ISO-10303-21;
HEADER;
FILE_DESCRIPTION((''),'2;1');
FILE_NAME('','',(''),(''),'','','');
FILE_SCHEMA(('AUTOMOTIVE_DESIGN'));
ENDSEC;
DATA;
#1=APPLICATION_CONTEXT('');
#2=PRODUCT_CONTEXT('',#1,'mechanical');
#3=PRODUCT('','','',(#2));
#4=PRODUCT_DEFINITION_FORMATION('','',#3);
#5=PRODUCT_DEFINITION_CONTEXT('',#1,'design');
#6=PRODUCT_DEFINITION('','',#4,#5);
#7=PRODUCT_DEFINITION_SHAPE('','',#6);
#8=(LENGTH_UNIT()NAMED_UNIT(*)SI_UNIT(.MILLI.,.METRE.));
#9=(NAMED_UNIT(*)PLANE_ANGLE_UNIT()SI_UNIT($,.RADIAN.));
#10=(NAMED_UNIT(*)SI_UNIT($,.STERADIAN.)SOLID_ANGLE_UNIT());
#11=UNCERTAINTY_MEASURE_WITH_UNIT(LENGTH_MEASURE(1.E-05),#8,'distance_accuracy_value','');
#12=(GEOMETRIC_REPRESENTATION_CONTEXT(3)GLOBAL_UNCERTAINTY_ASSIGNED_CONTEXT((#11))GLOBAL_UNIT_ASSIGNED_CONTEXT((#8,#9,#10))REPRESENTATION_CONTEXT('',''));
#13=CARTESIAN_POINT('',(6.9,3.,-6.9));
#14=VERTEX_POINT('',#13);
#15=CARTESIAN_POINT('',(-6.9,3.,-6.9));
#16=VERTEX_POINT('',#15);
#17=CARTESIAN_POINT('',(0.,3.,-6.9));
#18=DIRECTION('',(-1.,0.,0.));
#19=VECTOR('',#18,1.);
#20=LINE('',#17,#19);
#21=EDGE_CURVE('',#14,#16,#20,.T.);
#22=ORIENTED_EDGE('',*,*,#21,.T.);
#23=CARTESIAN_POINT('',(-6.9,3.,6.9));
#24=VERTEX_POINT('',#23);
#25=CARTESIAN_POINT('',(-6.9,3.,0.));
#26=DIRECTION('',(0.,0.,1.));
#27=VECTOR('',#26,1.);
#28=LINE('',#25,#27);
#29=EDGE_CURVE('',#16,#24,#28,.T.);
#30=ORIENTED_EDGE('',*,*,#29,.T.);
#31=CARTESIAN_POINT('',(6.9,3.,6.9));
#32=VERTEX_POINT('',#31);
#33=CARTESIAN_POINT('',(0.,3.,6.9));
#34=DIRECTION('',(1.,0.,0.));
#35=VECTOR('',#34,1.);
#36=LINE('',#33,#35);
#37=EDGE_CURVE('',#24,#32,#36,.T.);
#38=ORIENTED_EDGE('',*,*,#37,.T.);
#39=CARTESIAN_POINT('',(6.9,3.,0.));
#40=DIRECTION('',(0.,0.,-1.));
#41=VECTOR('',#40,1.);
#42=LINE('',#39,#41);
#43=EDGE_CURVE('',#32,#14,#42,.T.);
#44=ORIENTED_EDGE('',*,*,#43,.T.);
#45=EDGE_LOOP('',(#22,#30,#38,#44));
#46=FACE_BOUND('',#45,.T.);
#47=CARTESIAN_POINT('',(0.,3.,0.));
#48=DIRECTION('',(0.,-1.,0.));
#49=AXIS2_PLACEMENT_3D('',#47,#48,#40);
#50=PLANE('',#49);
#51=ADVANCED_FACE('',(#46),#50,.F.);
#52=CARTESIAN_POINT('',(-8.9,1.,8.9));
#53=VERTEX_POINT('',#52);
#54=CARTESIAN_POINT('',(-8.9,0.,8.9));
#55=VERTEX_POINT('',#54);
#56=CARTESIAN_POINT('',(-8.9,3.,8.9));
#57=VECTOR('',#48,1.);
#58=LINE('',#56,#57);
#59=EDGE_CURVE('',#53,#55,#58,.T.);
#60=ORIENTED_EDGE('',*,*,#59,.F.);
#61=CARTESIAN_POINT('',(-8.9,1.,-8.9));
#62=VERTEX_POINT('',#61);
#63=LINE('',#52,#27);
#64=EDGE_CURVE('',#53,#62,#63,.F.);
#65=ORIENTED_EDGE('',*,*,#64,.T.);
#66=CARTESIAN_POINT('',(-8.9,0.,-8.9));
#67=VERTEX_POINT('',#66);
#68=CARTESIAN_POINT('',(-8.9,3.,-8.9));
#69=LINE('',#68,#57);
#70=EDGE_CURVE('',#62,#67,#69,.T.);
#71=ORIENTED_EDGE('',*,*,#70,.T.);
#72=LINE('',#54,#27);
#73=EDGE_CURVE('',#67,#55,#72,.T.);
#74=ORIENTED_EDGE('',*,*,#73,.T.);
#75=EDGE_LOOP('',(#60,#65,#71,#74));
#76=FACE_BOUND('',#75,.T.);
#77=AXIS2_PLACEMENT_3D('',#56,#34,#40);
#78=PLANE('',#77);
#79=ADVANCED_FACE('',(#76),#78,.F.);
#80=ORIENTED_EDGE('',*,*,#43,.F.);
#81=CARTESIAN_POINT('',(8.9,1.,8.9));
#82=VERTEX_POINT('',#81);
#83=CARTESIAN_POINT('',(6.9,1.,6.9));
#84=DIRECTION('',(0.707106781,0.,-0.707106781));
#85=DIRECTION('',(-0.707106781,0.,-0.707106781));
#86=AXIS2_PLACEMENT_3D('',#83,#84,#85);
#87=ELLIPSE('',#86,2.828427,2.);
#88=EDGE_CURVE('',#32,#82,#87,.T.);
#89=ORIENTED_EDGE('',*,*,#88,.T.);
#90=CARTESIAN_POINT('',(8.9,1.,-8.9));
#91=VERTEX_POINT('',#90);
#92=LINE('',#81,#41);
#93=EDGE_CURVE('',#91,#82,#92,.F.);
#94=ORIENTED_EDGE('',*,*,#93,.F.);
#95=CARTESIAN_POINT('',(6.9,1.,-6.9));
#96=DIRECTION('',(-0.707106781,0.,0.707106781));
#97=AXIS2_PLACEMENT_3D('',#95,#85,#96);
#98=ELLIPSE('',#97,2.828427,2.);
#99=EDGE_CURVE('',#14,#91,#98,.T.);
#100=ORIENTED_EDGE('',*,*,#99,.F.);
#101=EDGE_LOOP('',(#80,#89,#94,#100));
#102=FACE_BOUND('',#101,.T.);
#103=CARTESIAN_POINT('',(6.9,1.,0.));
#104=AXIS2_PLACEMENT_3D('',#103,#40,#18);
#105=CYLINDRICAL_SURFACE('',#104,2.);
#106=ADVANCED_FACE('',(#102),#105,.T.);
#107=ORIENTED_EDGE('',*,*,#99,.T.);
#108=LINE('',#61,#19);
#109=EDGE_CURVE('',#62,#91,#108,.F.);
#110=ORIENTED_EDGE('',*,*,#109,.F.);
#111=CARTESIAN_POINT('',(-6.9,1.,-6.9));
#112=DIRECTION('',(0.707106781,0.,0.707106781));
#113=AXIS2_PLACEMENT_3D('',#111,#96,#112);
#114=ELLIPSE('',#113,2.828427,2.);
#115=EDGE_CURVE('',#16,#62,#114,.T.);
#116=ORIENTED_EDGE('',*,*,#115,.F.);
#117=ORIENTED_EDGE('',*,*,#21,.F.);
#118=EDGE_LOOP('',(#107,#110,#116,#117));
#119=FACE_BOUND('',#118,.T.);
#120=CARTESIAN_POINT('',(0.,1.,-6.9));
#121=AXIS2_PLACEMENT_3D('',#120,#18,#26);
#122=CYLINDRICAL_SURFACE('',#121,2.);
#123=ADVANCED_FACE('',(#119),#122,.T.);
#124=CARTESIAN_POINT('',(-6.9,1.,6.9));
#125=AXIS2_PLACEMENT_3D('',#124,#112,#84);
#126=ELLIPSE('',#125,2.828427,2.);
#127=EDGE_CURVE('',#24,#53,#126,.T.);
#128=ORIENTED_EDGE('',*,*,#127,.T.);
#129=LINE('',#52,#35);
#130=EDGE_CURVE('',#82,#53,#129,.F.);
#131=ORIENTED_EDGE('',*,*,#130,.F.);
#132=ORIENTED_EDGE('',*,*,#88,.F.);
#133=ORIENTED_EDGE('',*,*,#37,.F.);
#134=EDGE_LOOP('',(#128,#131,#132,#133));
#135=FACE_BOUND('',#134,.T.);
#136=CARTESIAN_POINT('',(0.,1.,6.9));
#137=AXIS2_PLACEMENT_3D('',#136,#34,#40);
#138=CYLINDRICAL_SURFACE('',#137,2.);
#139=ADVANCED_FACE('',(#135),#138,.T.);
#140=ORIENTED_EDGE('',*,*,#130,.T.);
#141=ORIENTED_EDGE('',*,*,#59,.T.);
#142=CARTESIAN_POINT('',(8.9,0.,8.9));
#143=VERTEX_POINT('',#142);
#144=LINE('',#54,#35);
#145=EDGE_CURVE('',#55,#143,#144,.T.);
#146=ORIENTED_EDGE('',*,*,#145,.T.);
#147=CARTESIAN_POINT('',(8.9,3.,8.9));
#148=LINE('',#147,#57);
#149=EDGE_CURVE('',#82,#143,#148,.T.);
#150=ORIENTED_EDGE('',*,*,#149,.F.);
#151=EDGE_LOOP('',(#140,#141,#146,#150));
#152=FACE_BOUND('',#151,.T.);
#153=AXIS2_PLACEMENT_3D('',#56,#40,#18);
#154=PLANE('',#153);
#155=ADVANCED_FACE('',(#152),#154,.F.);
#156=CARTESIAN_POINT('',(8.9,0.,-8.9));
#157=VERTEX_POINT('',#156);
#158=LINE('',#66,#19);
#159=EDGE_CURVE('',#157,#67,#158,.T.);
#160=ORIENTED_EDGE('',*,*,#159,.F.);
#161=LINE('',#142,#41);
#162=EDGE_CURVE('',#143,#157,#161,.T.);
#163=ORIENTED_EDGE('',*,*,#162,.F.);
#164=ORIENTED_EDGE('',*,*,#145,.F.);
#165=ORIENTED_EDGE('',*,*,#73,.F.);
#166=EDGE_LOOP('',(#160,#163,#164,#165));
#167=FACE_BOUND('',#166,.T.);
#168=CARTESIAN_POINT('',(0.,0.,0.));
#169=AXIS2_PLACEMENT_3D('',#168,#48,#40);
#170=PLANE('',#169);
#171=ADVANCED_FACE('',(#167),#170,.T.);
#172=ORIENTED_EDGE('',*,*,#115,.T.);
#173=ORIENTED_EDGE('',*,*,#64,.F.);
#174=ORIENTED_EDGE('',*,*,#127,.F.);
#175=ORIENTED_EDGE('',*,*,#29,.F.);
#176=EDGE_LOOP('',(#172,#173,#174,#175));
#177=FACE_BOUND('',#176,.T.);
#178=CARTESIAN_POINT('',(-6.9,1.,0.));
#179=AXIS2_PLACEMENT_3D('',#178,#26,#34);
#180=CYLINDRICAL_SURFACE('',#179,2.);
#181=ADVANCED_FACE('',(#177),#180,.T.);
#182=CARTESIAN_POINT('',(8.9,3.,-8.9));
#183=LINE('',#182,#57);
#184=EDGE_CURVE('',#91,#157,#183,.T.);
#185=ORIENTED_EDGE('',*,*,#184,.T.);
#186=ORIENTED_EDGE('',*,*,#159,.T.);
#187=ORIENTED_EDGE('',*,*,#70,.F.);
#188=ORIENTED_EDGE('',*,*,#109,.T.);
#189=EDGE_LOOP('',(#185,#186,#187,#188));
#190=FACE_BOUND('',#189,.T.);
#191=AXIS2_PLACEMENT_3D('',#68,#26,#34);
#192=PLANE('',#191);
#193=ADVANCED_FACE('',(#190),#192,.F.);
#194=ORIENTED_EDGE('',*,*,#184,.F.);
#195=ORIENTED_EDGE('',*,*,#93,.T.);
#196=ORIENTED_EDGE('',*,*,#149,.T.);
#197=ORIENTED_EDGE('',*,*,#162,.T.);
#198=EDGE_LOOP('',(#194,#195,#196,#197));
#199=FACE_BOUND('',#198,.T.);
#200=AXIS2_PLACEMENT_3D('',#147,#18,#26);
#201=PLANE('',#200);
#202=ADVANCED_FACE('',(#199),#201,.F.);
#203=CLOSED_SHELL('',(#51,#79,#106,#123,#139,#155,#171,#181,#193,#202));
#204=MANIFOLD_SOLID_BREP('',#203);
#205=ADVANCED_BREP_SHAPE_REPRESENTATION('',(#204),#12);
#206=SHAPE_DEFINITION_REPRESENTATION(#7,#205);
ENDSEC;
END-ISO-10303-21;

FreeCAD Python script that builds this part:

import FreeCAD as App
import Part
import Sketcher
from FreeCAD import Vector


def edges_at(feature, points):
    """Names of the edges that pass closest to the given points."""
    edges = feature.Shape.Edges
    near = lambda p: min(range(len(edges)), key=lambda i: edges[i].distToShape(Part.Vertex(*p))[0])
    return sorted({f"Edge{near(p) + 1}" for p in points})


def add_polygon(sketch, points):
    """Adds a closed chain of lines whose ends are joined by coincident constraints."""
    first, n = sketch.GeometryCount, len(points)
    for a, b in zip(points, points[1:] + points[:1]):
        sketch.addGeometry(Part.LineSegment(App.Vector(*a, 0), App.Vector(*b, 0)), False)
    for i in range(n):
        sketch.addConstraint(Sketcher.Constraint("Coincident", first + i, 2, first + (i + 1) % n, 1))

doc = App.newDocument("Part")
params = doc.addObject("Spreadsheet::Sheet", "Params")
for row, (alias, value) in enumerate([
    ("sketch1_width", "17.8 mm"),
    ("pad1_length", "3 mm"),
    ("fillet_radius", "2 mm"),
], start=1):
    params.set(f"A{row}", alias)
    params.set(f"B{row}", "=" + value)
    params.setAlias(f"B{row}", alias)

body = doc.addObject("PartDesign::Body", "Body")

sketch1 = doc.addObject("Sketcher::SketchObject", "Sketch")
body.addObject(sketch1)
sketch1.AttachmentSupport = (doc.XZ_Plane, [""])
sketch1.MapMode = "FlatFace"
add_polygon(sketch1, [(-8.9, -8.9), (-8.9, 8.9), (8.9, 8.9), (8.9, -8.9)])
sketch1.addConstraint([
    Sketcher.Constraint("Vertical", 0),
    Sketcher.Constraint("Horizontal", 1),
    Sketcher.Constraint("Vertical", 2),
    Sketcher.Constraint("Horizontal", 3),
    Sketcher.Constraint("Symmetric", 0, 2, 2, 2, -1, 1),
    Sketcher.Constraint("Equal", 3, 0),
    Sketcher.Constraint("DistanceX", 1, 1, 1, 2, 17.8),
])
sketch1.setExpression("Constraints[10]", "Params.sketch1_width")
pad1 = doc.addObject("PartDesign::Pad", "Pad")
body.addObject(pad1)
pad1.Profile = sketch1
pad1.setExpression("Length", "Params.pad1_length")
pad1.Reversed = True
doc.recompute()

fillet = doc.addObject("PartDesign::Fillet", "Fillet")
body.addObject(fillet)
fillet.Base = (pad1, edges_at(pad1, [
    (-8.9, 3, 0),
    (0, 3, 8.9),
    (8.9, 3, 0),
    (0, 3, -8.9),
]))
fillet.setExpression("Radius", "Params.fillet_radius")

doc.recompute()
